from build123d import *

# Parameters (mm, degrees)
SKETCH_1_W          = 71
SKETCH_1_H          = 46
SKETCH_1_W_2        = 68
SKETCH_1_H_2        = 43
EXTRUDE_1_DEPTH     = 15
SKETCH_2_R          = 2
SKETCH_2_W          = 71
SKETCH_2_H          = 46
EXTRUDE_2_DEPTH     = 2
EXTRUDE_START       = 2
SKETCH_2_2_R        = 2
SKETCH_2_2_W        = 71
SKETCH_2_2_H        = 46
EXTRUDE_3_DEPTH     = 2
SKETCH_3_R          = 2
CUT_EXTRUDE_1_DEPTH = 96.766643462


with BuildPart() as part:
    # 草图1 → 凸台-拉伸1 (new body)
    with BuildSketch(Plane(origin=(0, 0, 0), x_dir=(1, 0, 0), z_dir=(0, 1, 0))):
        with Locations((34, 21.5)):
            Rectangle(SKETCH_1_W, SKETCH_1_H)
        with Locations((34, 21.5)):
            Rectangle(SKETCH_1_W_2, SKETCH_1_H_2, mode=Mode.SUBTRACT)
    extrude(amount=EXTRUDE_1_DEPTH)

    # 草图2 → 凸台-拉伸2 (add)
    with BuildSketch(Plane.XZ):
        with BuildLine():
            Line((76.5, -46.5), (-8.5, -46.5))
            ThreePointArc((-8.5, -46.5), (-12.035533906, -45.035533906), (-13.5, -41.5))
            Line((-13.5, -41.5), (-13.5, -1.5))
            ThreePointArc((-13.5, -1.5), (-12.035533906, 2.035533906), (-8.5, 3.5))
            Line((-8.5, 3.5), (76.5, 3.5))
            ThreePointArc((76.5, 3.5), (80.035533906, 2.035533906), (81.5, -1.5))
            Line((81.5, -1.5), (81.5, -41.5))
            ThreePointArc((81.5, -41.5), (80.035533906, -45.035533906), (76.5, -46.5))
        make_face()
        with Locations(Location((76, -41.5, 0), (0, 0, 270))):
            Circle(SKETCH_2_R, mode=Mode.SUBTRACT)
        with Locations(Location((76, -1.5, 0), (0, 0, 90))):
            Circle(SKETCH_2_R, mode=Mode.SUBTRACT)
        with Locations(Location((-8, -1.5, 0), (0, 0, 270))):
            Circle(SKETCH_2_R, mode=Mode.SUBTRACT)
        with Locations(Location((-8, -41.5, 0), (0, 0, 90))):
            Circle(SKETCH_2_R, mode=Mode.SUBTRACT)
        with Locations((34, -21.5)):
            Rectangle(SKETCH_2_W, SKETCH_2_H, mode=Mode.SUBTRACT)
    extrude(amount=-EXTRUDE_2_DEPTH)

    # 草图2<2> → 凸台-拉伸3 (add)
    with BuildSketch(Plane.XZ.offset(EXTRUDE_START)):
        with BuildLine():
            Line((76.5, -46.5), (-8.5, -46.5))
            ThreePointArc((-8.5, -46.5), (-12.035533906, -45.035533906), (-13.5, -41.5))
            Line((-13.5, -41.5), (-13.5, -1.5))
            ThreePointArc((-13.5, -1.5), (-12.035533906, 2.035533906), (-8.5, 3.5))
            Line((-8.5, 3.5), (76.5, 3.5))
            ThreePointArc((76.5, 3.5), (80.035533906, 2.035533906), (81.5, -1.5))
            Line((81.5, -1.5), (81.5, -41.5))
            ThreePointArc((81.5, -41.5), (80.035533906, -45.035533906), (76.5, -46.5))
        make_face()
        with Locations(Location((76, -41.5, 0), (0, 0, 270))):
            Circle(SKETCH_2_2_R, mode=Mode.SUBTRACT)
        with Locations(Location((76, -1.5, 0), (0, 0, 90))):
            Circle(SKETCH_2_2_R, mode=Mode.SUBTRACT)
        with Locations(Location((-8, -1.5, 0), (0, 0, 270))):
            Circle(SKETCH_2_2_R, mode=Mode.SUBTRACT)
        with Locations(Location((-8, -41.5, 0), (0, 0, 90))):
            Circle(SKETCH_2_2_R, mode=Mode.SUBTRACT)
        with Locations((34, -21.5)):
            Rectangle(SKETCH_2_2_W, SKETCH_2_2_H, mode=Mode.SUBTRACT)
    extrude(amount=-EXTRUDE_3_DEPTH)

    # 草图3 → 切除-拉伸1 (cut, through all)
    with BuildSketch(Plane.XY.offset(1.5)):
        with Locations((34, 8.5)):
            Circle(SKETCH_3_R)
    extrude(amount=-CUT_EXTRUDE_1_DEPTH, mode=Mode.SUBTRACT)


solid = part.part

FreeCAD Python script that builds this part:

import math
import FreeCAD as App
import Part
import Sketcher

V = App.Vector
Q = App.Units.Quantity


def add_polygon(sketch, points):
    """Adds a closed chain of lines whose ends are joined by coincident constraints."""
    first, n = sketch.GeometryCount, len(points)
    for a, b in zip(points, points[1:] + points[:1]):
        sketch.addGeometry(Part.LineSegment(App.Vector(*a, 0), App.Vector(*b, 0)), False)
    for i in range(n):
        sketch.addConstraint(Sketcher.Constraint("Coincident", first + i, 2, first + (i + 1) % n, 1))

doc = App.newDocument("Part")
params = doc.addObject("Spreadsheet::Sheet", "Params")
for row, (alias, value) in enumerate([
    ("sketch1_width", "71 mm"),
    ("sketch1_width2", "68 mm"),
    ("sketch1_height", "46 mm"),
    ("sketch1_height2", "43 mm"),
    ("pad1_length", "15 mm"),
    ("sketch2_diameter", "4 mm"),
    ("sketch2_radius", "5 mm"),
    ("sketch2_width", "85 mm"),
    ("sketch2_width2", "71 mm"),
    ("sketch2_height", "40 mm"),
    ("pad2_length", "2 mm"),
    ("sketch3_diameter", "4 mm"),
    ("sketch3_radius", "5 mm"),
    ("sketch3_width", "85 mm"),
    ("sketch3_width2", "71 mm"),
    ("sketch3_height", "40 mm"),
    ("pad3_length", "2 mm"),
    ("sketch4_diameter", "4 mm"),
], start=1):
    params.set(f"A{row}", alias)
    params.set(f"B{row}", "=" + value)
    params.setAlias(f"B{row}", alias)

body = doc.addObject("PartDesign::Body", "Body")

# Sketch on XZ plane
sketch1 = body.newObject("Sketcher::SketchObject", "Sketch")
sketch1.AttachmentSupport = (doc.getObject("XZ_Plane"), [""])
sketch1.MapMode = "FlatFace"
add_polygon(sketch1, [(-2, -44), (-2, 2), (70, 2), (70, -44)])  # lines 0-3
add_polygon(sketch1, [(68, 0), (0, 0), (0, -43), (68, -43)])  # lines 4-7
sketch1.addConstraint(Sketcher.Constraint("Vertical", 0))
sketch1.addConstraint(Sketcher.Constraint("Horizontal", 1))
sketch1.addConstraint(Sketcher.Constraint("Vertical", 2))
sketch1.addConstraint(Sketcher.Constraint("Horizontal", 3))
sketch1.addConstraint(Sketcher.Constraint("Horizontal", 4))
sketch1.addConstraint(Sketcher.Constraint("Vertical", 5))
sketch1.addConstraint(Sketcher.Constraint("Horizontal", 6))
sketch1.addConstraint(Sketcher.Constraint("Vertical", 7))
sketch1.addConstraint(Sketcher.Constraint("Coincident", 4, 2, -1, 1))
sketch1.addConstraint(Sketcher.Constraint("DistanceX", 1, 1, 1, 2, Q("71 mm")))
sketch1.addConstraint(Sketcher.Constraint("DistanceX", 4, 2, 4, 1, Q("68 mm")))
sketch1.addConstraint(Sketcher.Constraint("DistanceY", 0, 1, 0, 2, Q("46 mm")))
sketch1.addConstraint(Sketcher.Constraint("DistanceY", 5, 2, 5, 1, Q("43 mm")))
sketch1.addConstraint(Sketcher.Constraint("DistanceX", 0, 2, -1, 1, Q("1.5 mm")))
sketch1.addConstraint(Sketcher.Constraint("DistanceY", -1, 1, 0, 2, Q("1.5 mm")))
sketch1.setExpression("Constraints[17]", "Params.sketch1_width")
sketch1.setExpression("Constraints[18]", "Params.sketch1_width2")
sketch1.setExpression("Constraints[19]", "Params.sketch1_height")
sketch1.setExpression("Constraints[20]", "Params.sketch1_height2")
pad1 = body.newObject("PartDesign::Pad", "Pad")
pad1.Profile = sketch1
pad1.setExpression("Length", "Params.pad1_length")
pad1.Reversed = True

# Sketch on XZ plane
sketch2 = body.newObject("Sketcher::SketchObject", "Sketch001")
sketch2.AttachmentSupport = (doc.getObject("XZ_Plane"), [""])
sketch2.MapMode = "FlatFace"
sketch2.addGeometry(Part.LineSegment(V(-8.5, -46.5, 0), V(76.5, -46.5, 0)), False)  # 0
sketch2.addGeometry(Part.ArcOfCircle(Part.Circle(V(76.5, -41.5, 0), V(0, 0, 1), 5), math.radians(-90), math.radians(0)), False)  # 1
sketch2.addGeometry(Part.LineSegment(V(81.5, -41.5, 0), V(81.5, -1.5, 0)), False)  # 2
sketch2.addGeometry(Part.ArcOfCircle(Part.Circle(V(76.5, -1.5, 0), V(0, 0, 1), 5), math.radians(0), math.radians(90)), False)  # 3
sketch2.addGeometry(Part.LineSegment(V(76.5, 3.5, 0), V(-8.5, 3.5, 0)), False)  # 4
sketch2.addGeometry(Part.ArcOfCircle(Part.Circle(V(-8.5, -1.5, 0), V(0, 0, 1), 5), math.radians(90), math.radians(180)), False)  # 5
sketch2.addGeometry(Part.LineSegment(V(-13.5, -1.5, 0), V(-13.5, -41.5, 0)), False)  # 6
sketch2.addGeometry(Part.ArcOfCircle(Part.Circle(V(-8.5, -41.5, 0), V(0, 0, 1), 5), math.radians(180), math.radians(270)), False)  # 7
sketch2.addGeometry(Part.Circle(V(76, -41.5, 0), V(0, 0, 1), 2), False)  # 8
sketch2.addGeometry(Part.Circle(V(-8, -41.5, 0), V(0, 0, 1), 2), False)  # 9
sketch2.addGeometry(Part.Circle(V(76, -1.5, 0), V(0, 0, 1), 2), False)  # 10
add_polygon(sketch2, [(-1.5, -44.5), (-1.5, 1.5), (69.5, 1.5), (69.5, -44.5)])  # lines 11-14
sketch2.addGeometry(Part.Circle(V(-8, -1.5, 0), V(0, 0, 1), 2), False)  # 15
sketch2.addConstraint(Sketcher.Constraint("Tangent", 0, 2, 1, 1))
sketch2.addConstraint(Sketcher.Constraint("Tangent", 1, 2, 2, 1))
sketch2.addConstraint(Sketcher.Constraint("Tangent", 2, 2, 3, 1))
sketch2.addConstraint(Sketcher.Constraint("Tangent", 3, 2, 4, 1))
sketch2.addConstraint(Sketcher.Constraint("Tangent", 4, 2, 5, 1))
sketch2.addConstraint(Sketcher.Constraint("Tangent", 5, 2, 6, 1))
sketch2.addConstraint(Sketcher.Constraint("Tangent", 6, 2, 7, 1))
sketch2.addConstraint(Sketcher.Constraint("Tangent", 7, 2, 0, 1))
sketch2.addConstraint(Sketcher.Constraint("Horizontal", 0))
sketch2.addConstraint(Sketcher.Constraint("Vertical", 2))
sketch2.addConstraint(Sketcher.Constraint("Horizontal", 4))
sketch2.addConstraint(Sketcher.Constraint("Vertical", 6))
sketch2.addConstraint(Sketcher.Constraint("Vertical", 11))
sketch2.addConstraint(Sketcher.Constraint("Horizontal", 12))
sketch2.addConstraint(Sketcher.Constraint("Vertical", 13))
sketch2.addConstraint(Sketcher.Constraint("Horizontal", 14))
sketch2.addConstraint(Sketcher.Constraint("Equal", 1, 3))
sketch2.addConstraint(Sketcher.Constraint("Equal", 3, 5))
sketch2.addConstraint(Sketcher.Constraint("Equal", 5, 7))
sketch2.addConstraint(Sketcher.Constraint("Equal", 8, 9))
sketch2.addConstraint(Sketcher.Constraint("Equal", 9, 10))
sketch2.addConstraint(Sketcher.Constraint("Equal", 10, 15))
sketch2.addConstraint(Sketcher.Constraint("Horizontal", 7, 3, 8, 3))
sketch2.addConstraint(Sketcher.Constraint("Horizontal", 8, 3, 9, 3))
sketch2.addConstraint(Sketcher.Constraint("Horizontal", 5, 3, 10, 3))
sketch2.addConstraint(Sketcher.Constraint("Horizontal", 10, 3, 15, 3))
sketch2.addConstraint(Sketcher.Constraint("Vertical", 8, 3, 10, 3))
sketch2.addConstraint(Sketcher.Constraint("Vertical", 9, 3, 15, 3))
sketch2.addConstraint(Sketcher.Constraint("Diameter", 8, Q("4 mm")))
sketch2.addConstraint(Sketcher.Constraint("Radius", 1, Q("5 mm")))
sketch2.addConstraint(Sketcher.Constraint("DistanceX", 0, 1, 0, 2, Q("85 mm")))
sketch2.addConstraint(Sketcher.Constraint("DistanceX", 12, 1, 12, 2, Q("71 mm")))
sketch2.addConstraint(Sketcher.Constraint("DistanceY", 2, 1, 2, 2, Q("40 mm")))
sketch2.addConstraint(Sketcher.Constraint("DistanceY", 11, 1, 11, 2, Q("46 mm")))
sketch2.addConstraint(Sketcher.Constraint("DistanceX", -1, 1, 8, 3, Q("76 mm")))
sketch2.addConstraint(Sketcher.Constraint("DistanceX", 9, 3, -1, 1, Q("8 mm")))
sketch2.addConstraint(Sketcher.Constraint("DistanceY", 15, 3, 11, 2, Q("3 mm")))
sketch2.addConstraint(Sketcher.Constraint("DistanceX", 4, 2, 11, 2, Q("7 mm")))
sketch2.addConstraint(Sketcher.Constraint("DistanceX", -1, 1, 1, 3, Q("76.5 mm")))
sketch2.addConstraint(Sketcher.Constraint("DistanceY", 1, 3, -1, 1, Q("41.5 mm")))
sketch2.setExpression("Constraints[32]", "Params.sketch2_diameter")
sketch2.setExpression("Constraints[33]", "Params.sketch2_radius")
sketch2.setExpression("Constraints[34]", "Params.sketch2_width")
sketch2.setExpression("Constraints[35]", "Params.sketch2_width2")
sketch2.setExpression("Constraints[36]", "Params.sketch2_height")
pad2 = body.newObject("PartDesign::Pad", "Pad001")
pad2.Profile = sketch2
pad2.setExpression("Length", "Params.pad2_length")
pad2.Reversed = True

# Sketch on XZ plane
sketch3 = body.newObject("Sketcher::SketchObject", "Sketch002")
sketch3.AttachmentSupport = (doc.getObject("XZ_Plane"), [""])
sketch3.MapMode = "FlatFace"
sketch3.AttachmentOffset = App.Placement(V(0, 0, 2), App.Rotation())
sketch3.addGeometry(Part.LineSegment(V(-8.5, -46.5, 0), V(76.5, -46.5, 0)), False)  # 0
sketch3.addGeometry(Part.ArcOfCircle(Part.Circle(V(76.5, -41.5, 0), V(0, 0, 1), 5), math.radians(-90), math.radians(0)), False)  # 1
sketch3.addGeometry(Part.LineSegment(V(81.5, -41.5, 0), V(81.5, -1.5, 0)), False)  # 2
sketch3.addGeometry(Part.ArcOfCircle(Part.Circle(V(76.5, -1.5, 0), V(0, 0, 1), 5), math.radians(0), math.radians(90)), False)  # 3
sketch3.addGeometry(Part.LineSegment(V(76.5, 3.5, 0), V(-8.5, 3.5, 0)), False)  # 4
sketch3.addGeometry(Part.ArcOfCircle(Part.Circle(V(-8.5, -1.5, 0), V(0, 0, 1), 5), math.radians(90), math.radians(180)), False)  # 5
sketch3.addGeometry(Part.LineSegment(V(-13.5, -1.5, 0), V(-13.5, -41.5, 0)), False)  # 6
sketch3.addGeometry(Part.ArcOfCircle(Part.Circle(V(-8.5, -41.5, 0), V(0, 0, 1), 5), math.radians(180), math.radians(270)), False)  # 7
sketch3.addGeometry(Part.Circle(V(76, -41.5, 0), V(0, 0, 1), 2), False)  # 8
sketch3.addGeometry(Part.Circle(V(-8, -41.5, 0), V(0, 0, 1), 2), False)  # 9
sketch3.addGeometry(Part.Circle(V(76, -1.5, 0), V(0, 0, 1), 2), False)  # 10
add_polygon(sketch3, [(-1.5, -44.5), (-1.5, 1.5), (69.5, 1.5), (69.5, -44.5)])  # lines 11-14
sketch3.addGeometry(Part.Circle(V(-8, -1.5, 0), V(0, 0, 1), 2), False)  # 15
sketch3.addConstraint(Sketcher.Constraint("Tangent", 0, 2, 1, 1))
sketch3.addConstraint(Sketcher.Constraint("Tangent", 1, 2, 2, 1))
sketch3.addConstraint(Sketcher.Constraint("Tangent", 2, 2, 3, 1))
sketch3.addConstraint(Sketcher.Constraint("Tangent", 3, 2, 4, 1))
sketch3.addConstraint(Sketcher.Constraint("Tangent", 4, 2, 5, 1))
sketch3.addConstraint(Sketcher.Constraint("Tangent", 5, 2, 6, 1))
sketch3.addConstraint(Sketcher.Constraint("Tangent", 6, 2, 7, 1))
sketch3.addConstraint(Sketcher.Constraint("Tangent", 7, 2, 0, 1))
sketch3.addConstraint(Sketcher.Constraint("Horizontal", 0))
sketch3.addConstraint(Sketcher.Constraint("Vertical", 2))
sketch3.addConstraint(Sketcher.Constraint("Horizontal", 4))
sketch3.addConstraint(Sketcher.Constraint("Vertical", 6))
sketch3.addConstraint(Sketcher.Constraint("Vertical", 11))
sketch3.addConstraint(Sketcher.Constraint("Horizontal", 12))
sketch3.addConstraint(Sketcher.Constraint("Vertical", 13))
sketch3.addConstraint(Sketcher.Constraint("Horizontal", 14))
sketch3.addConstraint(Sketcher.Constraint("Equal", 1, 3))
sketch3.addConstraint(Sketcher.Constraint("Equal", 3, 5))
sketch3.addConstraint(Sketcher.Constraint("Equal", 5, 7))
sketch3.addConstraint(Sketcher.Constraint("Equal", 8, 9))
sketch3.addConstraint(Sketcher.Constraint("Equal", 9, 10))
sketch3.addConstraint(Sketcher.Constraint("Equal", 10, 15))
sketch3.addConstraint(Sketcher.Constraint("Horizontal", 7, 3, 8, 3))
sketch3.addConstraint(Sketcher.Constraint("Horizontal", 8, 3, 9, 3))
sketch3.addConstraint(Sketcher.Constraint("Horizontal", 5, 3, 10, 3))
sketch3.addConstraint(Sketcher.Constraint("Horizontal", 10, 3, 15, 3))
sketch3.addConstraint(Sketcher.Constraint("Vertical", 8, 3, 10, 3))
sketch3.addConstraint(Sketcher.Constraint("Vertical", 9, 3, 15, 3))
sketch3.addConstraint(Sketcher.Constraint("Diameter", 8, Q("4 mm")))
sketch3.addConstraint(Sketcher.Constraint("Radius", 1, Q("5 mm")))
sketch3.addConstraint(Sketcher.Constraint("DistanceX", 0, 1, 0, 2, Q("85 mm")))
sketch3.addConstraint(Sketcher.Constraint("DistanceX", 12, 1, 12, 2, Q("71 mm")))
sketch3.addConstraint(Sketcher.Constraint("DistanceY", 2, 1, 2, 2, Q("40 mm")))
sketch3.addConstraint(Sketcher.Constraint("DistanceY", 11, 1, 11, 2, Q("46 mm")))
sketch3.addConstraint(Sketcher.Constraint("DistanceX", -1, 1, 8, 3, Q("76 mm")))
sketch3.addConstraint(Sketcher.Constraint("DistanceX", 9, 3, -1, 1, Q("8 mm")))
sketch3.addConstraint(Sketcher.Constraint("DistanceY", 15, 3, 11, 2, Q("3 mm")))
sketch3.addConstraint(Sketcher.Constraint("DistanceX", 4, 2, 11, 2, Q("7 mm")))
sketch3.addConstraint(Sketcher.Constraint("DistanceX", -1, 1, 1, 3, Q("76.5 mm")))
sketch3.addConstraint(Sketcher.Constraint("DistanceY", 1, 3, -1, 1, Q("41.5 mm")))
sketch3.setExpression("Constraints[32]", "Params.sketch3_diameter")
sketch3.setExpression("Constraints[33]", "Params.sketch3_radius")
sketch3.setExpression("Constraints[34]", "Params.sketch3_width")
sketch3.setExpression("Constraints[35]", "Params.sketch3_width2")
sketch3.setExpression("Constraints[36]", "Params.sketch3_height")
pad3 = body.newObject("PartDesign::Pad", "Pad002")
pad3.Profile = sketch3
pad3.setExpression("Length", "Params.pad3_length")
pad3.Reversed = True

# Sketch on XY plane
sketch4 = body.newObject("Sketcher::SketchObject", "Sketch003")
sketch4.AttachmentSupport = (doc.getObject("XY_Plane"), [""])
sketch4.MapMode = "FlatFace"
sketch4.AttachmentOffset = App.Placement(V(0, 0, 1.5), App.Rotation())
sketch4.addGeometry(Part.Circle(V(34, 8.5, 0), V(0, 0, 1), 2), False)
sketch4.addConstraint(Sketcher.Constraint("Diameter", 0, Q("4 mm")))
sketch4.addConstraint(Sketcher.Constraint("DistanceX", -1, 1, 0, 3, Q("34 mm")))
sketch4.addConstraint(Sketcher.Constraint("DistanceY", -1, 1, 0, 3, Q("8.5 mm")))
sketch4.setExpression("Constraints[0]", "Params.sketch4_diameter")
pocket1 = body.newObject("PartDesign::Pocket", "Pocket")
pocket1.Profile = sketch4
pocket1.Type = "ThroughAll"

doc.recompute()
